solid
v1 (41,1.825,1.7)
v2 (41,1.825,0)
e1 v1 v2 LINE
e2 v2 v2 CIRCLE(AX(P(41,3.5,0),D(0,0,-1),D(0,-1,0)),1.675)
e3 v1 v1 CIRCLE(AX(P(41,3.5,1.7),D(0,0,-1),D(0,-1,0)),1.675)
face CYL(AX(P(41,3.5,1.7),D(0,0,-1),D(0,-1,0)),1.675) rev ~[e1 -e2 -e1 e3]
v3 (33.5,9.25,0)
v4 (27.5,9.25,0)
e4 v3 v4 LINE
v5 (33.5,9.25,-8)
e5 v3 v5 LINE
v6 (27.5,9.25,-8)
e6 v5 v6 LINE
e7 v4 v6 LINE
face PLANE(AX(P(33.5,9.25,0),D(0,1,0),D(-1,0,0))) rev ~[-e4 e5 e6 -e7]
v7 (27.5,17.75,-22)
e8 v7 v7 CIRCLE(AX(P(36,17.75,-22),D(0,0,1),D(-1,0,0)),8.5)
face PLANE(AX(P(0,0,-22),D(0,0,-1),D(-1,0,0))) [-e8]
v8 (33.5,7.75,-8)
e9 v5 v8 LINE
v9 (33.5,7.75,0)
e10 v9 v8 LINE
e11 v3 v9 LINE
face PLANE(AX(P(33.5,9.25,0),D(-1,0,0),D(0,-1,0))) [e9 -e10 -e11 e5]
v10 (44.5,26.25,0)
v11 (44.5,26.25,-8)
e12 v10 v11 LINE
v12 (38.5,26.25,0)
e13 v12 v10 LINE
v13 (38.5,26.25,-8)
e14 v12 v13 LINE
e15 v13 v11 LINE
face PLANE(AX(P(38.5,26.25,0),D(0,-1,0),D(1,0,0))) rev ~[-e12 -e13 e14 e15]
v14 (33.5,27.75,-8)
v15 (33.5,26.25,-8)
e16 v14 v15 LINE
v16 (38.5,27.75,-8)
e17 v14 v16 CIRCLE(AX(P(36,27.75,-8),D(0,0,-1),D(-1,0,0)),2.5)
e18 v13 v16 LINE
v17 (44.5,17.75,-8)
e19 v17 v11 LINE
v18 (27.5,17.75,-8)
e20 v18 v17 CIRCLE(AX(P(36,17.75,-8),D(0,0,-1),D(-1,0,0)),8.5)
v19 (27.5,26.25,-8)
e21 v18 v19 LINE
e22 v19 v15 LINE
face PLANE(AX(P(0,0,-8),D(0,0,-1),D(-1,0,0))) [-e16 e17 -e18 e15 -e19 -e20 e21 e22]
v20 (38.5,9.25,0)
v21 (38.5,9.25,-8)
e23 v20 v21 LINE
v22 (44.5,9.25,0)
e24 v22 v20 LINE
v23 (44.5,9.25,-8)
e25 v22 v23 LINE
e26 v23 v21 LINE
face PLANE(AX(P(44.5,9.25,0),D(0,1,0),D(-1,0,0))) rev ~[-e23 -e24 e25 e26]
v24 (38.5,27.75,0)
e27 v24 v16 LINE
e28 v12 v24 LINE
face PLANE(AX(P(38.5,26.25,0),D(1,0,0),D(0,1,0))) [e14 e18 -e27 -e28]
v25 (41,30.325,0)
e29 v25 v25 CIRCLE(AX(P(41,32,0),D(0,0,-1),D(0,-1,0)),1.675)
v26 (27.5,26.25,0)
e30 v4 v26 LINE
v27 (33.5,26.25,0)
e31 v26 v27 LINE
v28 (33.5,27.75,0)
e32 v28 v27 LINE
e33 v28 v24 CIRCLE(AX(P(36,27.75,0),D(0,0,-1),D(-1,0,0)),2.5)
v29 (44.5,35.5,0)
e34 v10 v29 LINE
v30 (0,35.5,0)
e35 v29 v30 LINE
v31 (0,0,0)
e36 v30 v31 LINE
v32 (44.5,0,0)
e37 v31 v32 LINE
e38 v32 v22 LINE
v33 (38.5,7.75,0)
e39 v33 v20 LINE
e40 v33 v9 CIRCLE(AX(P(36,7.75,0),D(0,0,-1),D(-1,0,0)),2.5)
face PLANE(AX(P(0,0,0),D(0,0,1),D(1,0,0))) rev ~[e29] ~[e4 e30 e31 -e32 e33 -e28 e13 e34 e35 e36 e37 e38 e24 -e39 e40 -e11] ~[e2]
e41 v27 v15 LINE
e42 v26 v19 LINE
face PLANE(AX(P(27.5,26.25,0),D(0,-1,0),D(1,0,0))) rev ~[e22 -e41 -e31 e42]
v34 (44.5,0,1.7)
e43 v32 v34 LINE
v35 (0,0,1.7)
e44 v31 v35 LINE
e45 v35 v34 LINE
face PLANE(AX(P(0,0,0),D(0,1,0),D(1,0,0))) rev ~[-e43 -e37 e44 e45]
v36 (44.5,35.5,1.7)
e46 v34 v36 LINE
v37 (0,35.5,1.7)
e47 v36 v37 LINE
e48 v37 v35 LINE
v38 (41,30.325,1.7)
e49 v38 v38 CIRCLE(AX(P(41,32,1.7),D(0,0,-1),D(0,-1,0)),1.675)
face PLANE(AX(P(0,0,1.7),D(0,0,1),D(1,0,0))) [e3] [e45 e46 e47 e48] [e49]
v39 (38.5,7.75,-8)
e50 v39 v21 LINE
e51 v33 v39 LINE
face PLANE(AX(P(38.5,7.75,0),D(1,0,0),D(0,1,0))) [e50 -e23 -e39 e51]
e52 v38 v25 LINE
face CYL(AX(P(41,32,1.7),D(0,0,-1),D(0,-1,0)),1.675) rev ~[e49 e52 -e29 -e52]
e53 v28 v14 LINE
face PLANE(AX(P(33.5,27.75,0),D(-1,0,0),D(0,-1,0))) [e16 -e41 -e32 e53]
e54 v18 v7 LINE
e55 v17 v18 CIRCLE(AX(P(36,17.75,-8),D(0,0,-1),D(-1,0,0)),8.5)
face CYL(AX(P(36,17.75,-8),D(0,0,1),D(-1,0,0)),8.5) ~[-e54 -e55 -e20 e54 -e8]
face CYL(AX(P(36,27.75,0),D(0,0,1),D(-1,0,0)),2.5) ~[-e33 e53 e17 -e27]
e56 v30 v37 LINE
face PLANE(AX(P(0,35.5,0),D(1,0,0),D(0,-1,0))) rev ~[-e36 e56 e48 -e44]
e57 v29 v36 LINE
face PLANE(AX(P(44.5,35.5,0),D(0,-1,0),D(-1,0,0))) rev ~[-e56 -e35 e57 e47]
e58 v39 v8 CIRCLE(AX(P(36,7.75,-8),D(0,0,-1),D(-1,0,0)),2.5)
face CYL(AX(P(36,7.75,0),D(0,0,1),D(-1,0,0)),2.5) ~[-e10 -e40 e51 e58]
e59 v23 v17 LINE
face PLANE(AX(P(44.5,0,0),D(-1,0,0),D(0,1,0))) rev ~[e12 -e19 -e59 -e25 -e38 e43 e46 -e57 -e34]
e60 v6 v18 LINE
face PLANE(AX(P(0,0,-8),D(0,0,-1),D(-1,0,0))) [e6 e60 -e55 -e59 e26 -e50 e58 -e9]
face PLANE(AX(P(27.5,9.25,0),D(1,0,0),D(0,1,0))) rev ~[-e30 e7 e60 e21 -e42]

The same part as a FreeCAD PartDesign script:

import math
import FreeCAD as App
import Part
import Sketcher
from FreeCAD import Vector
Q = App.Units.Quantity

doc = App.newDocument("Part")
params = doc.addObject("Spreadsheet::Sheet", "Params")
for row, (alias, value) in enumerate([
    ("sketch1_width", "44.5 mm"),
    ("sketch1_height", "35.5 mm"),
    ("pad1_length", "1.7 mm"),
    ("sketch2_diameter", "3.35 mm"),
    ("hole_diameter", "3.35 mm"),
    ("hole_depth", "15 mm"),
    ("sketch3_radius", "2.5 mm"),
    ("sketch3_height", "17 mm"),
    ("sketch3_height2", "1.5 mm"),
    ("sketch3_width", "6 mm"),
    ("pad2_length", "8 mm"),
    ("sketch4_diameter", "17 mm"),
    ("pad3_length", "14 mm"),
], start=1):
    params.set(f"A{row}", alias)
    params.set(f"B{row}", "=" + value)
    params.setAlias(f"B{row}", alias)

body = doc.addObject("PartDesign::Body", "Body")

# Sketch on XY plane
sketch1 = body.newObject("Sketcher::SketchObject", "Sketch")
sketch1.AttachmentSupport = (doc.getObject("XY_Plane"), [""])
sketch1.MapMode = "FlatFace"
sketch1.addGeometry([
    Part.LineSegment(Vector(0, 36, 0), Vector(0, 0, 0)),
    Part.LineSegment(Vector(0, 0, 0), Vector(44, 0, 0)),
    Part.LineSegment(Vector(44, 0, 0), Vector(44, 36, 0)),
    Part.LineSegment(Vector(44, 36, 0), Vector(0, 36, 0)),
], False)
sketch1.addConstraint([
    Sketcher.Constraint("Coincident", 0, 2, 1, 1),
    Sketcher.Constraint("Coincident", 1, 2, 2, 1),
    Sketcher.Constraint("Coincident", 2, 2, 3, 1),
    Sketcher.Constraint("Coincident", 3, 2, 0, 1),
    Sketcher.Constraint("Vertical", 0),
    Sketcher.Constraint("Horizontal", 1),
    Sketcher.Constraint("Vertical", 2),
    Sketcher.Constraint("Horizontal", 3),
    Sketcher.Constraint("Coincident", 0, 2, -1, 1),
    Sketcher.Constraint("DistanceX", 1, 1, 1, 2, Q("44.5 mm")),
    Sketcher.Constraint("DistanceY", 0, 2, 0, 1, Q("35.5 mm")),
])
sketch1.setExpression("Constraints[9]", "Params.sketch1_width")
sketch1.setExpression("Constraints[10]", "Params.sketch1_height")
pad1 = body.newObject("PartDesign::Pad", "Pad")
pad1.Profile = sketch1
pad1.setExpression("Length", "Params.pad1_length")

# Sketch on XY plane
sketch2 = body.newObject("Sketcher::SketchObject", "Sketch001")
sketch2.AttachmentSupport = (doc.getObject("XY_Plane"), [""])
sketch2.MapMode = "FlatFace"
sketch2.AttachmentOffset = App.Placement(Vector(0, 0, 1.7), App.Rotation())
sketch2.addGeometry([
    Part.Circle(Vector(41, 32, 0), Vector(0, 0, 1), 1.7),
    Part.Circle(Vector(41, 3.5, 0), Vector(0, 0, 1), 1.7),
], False)
sketch2.addConstraint([
    Sketcher.Constraint("Equal", 0, 1),
    Sketcher.Constraint("Vertical", 0, 3, 1, 3),
    Sketcher.Constraint("Diameter", 0, Q("3.35 mm")),
    Sketcher.Constraint("DistanceX", -1, 1, 0, 3, Q("41 mm")),
    Sketcher.Constraint("DistanceY", -1, 1, 0, 3, Q("32 mm")),
    Sketcher.Constraint("DistanceY", -1, 1, 1, 3, Q("3.5 mm")),
])
sketch2.setExpression("Constraints[2]", "Params.sketch2_diameter")
doc.recompute()
hole = body.newObject("PartDesign::Hole", "Hole")
hole.Profile = sketch2
hole.ThreadType = "None"
hole.setExpression("Diameter", "Params.hole_diameter")
hole.DepthType = "Dimension"
hole.setExpression("Depth", "Params.hole_depth")
hole.DrillPoint = "Flat"

# Sketch on XY plane
sketch3 = body.newObject("Sketcher::SketchObject", "Sketch002")
sketch3.AttachmentSupport = (doc.getObject("XY_Plane"), [""])
sketch3.MapMode = "FlatFace"
sketch3.addGeometry([
    Part.LineSegment(Vector(44.5, 26.2, 0), Vector(44.5, 9.2, 0)),  # 0
    Part.LineSegment(Vector(44.5, 9.2, 0), Vector(38.5, 9.2, 0)),  # 1
    Part.LineSegment(Vector(38.5, 9.2, 0), Vector(38.5, 7.8, 0)),  # 2
    Part.ArcOfCircle(Part.Circle(Vector(36, 7.8, 0), Vector(0, 0, 1), 2.5), math.radians(180), math.radians(360)),  # 3
    Part.LineSegment(Vector(33.5, 7.8, 0), Vector(33.5, 9.2, 0)),  # 4
    Part.LineSegment(Vector(33.5, 9.2, 0), Vector(27.5, 9.2, 0)),  # 5
    Part.LineSegment(Vector(27.5, 9.2, 0), Vector(27.5, 26.2, 0)),  # 6
    Part.LineSegment(Vector(27.5, 26.2, 0), Vector(33.5, 26.2, 0)),  # 7
    Part.LineSegment(Vector(33.5, 26.2, 0), Vector(33.5, 27.8, 0)),  # 8
    Part.ArcOfCircle(Part.Circle(Vector(36, 27.8, 0), Vector(0, 0, 1), 2.5), math.radians(0), math.radians(180)),  # 9
    Part.LineSegment(Vector(38.5, 27.8, 0), Vector(38.5, 26.2, 0)),  # 10
    Part.LineSegment(Vector(38.5, 26.2, 0), Vector(44.5, 26.2, 0)),  # 11
], False)
sketch3.addConstraint([
    Sketcher.Constraint("Coincident", 0, 2, 1, 1),
    Sketcher.Constraint("Coincident", 1, 2, 2, 1),
    Sketcher.Constraint("Tangent", 2, 2, 3, 2),
    Sketcher.Constraint("Tangent", 3, 1, 4, 1),
    Sketcher.Constraint("Coincident", 4, 2, 5, 1),
    Sketcher.Constraint("Coincident", 5, 2, 6, 1),
    Sketcher.Constraint("Coincident", 6, 2, 7, 1),
    Sketcher.Constraint("Coincident", 7, 2, 8, 1),
    Sketcher.Constraint("Tangent", 8, 2, 9, 2),
    Sketcher.Constraint("Tangent", 9, 1, 10, 1),
    Sketcher.Constraint("Coincident", 10, 2, 11, 1),
    Sketcher.Constraint("Coincident", 11, 2, 0, 1),
    Sketcher.Constraint("Vertical", 0),
    Sketcher.Constraint("Horizontal", 1),
    Sketcher.Constraint("Vertical", 2),
    Sketcher.Constraint("Vertical", 4),
    Sketcher.Constraint("Horizontal", 5),
    Sketcher.Constraint("Vertical", 6),
    Sketcher.Constraint("Horizontal", 7),
    Sketcher.Constraint("Vertical", 8),
    Sketcher.Constraint("Vertical", 10),
    Sketcher.Constraint("Horizontal", 11),
    Sketcher.Constraint("Equal", 3, 9),
    Sketcher.Constraint("Horizontal", 1, 2, 4, 2),
    Sketcher.Constraint("Horizontal", 7, 2, 10, 2),
    Sketcher.Constraint("Vertical", 3, 3, 9, 3),
    Sketcher.Constraint("Equal", 1, 5),
    Sketcher.Constraint("Equal", 4, 8),
    Sketcher.Constraint("Radius", 3, Q("2.5 mm")),
    Sketcher.Constraint("DistanceY", 0, 2, 0, 1, Q("17 mm")),
    Sketcher.Constraint("DistanceY", 2, 2, 2, 1, Q("1.5 mm")),
    Sketcher.Constraint("DistanceX", 1, 2, 1, 1, Q("6 mm")),
    Sketcher.Constraint("DistanceY", -1, 1, 0, 2, Q("9.25 mm")),
    Sketcher.Constraint("DistanceX", -1, 1, 3, 3, Q("36 mm")),
])
sketch3.setExpression("Constraints[28]", "Params.sketch3_radius")
sketch3.setExpression("Constraints[29]", "Params.sketch3_height")
sketch3.setExpression("Constraints[30]", "Params.sketch3_height2")
sketch3.setExpression("Constraints[31]", "Params.sketch3_width")
pad2 = body.newObject("PartDesign::Pad", "Pad001")
pad2.Profile = sketch3
pad2.setExpression("Length", "Params.pad2_length")
pad2.Reversed = True

# Sketch on XY plane
sketch4 = body.newObject("Sketcher::SketchObject", "Sketch003")
sketch4.AttachmentSupport = (doc.getObject("XY_Plane"), [""])
sketch4.MapMode = "FlatFace"
sketch4.AttachmentOffset = App.Placement(Vector(0, 0, -8), App.Rotation())
sketch4.addGeometry(Part.Circle(Vector(36, 18, 0), Vector(0, 0, 1), 8), False)
sketch4.addConstraint([
    Sketcher.Constraint("Diameter", 0, Q("17 mm")),
    Sketcher.Constraint("DistanceX", -1, 1, 0, 3, Q("36 mm")),
    Sketcher.Constraint("DistanceY", -1, 1, 0, 3, Q("17.75 mm")),
])
sketch4.setExpression("Constraints[0]", "Params.sketch4_diameter")
pad3 = body.newObject("PartDesign::Pad", "Pad002")
pad3.Profile = sketch4
pad3.setExpression("Length", "Params.pad3_length")
pad3.Reversed = True

doc.recompute()
